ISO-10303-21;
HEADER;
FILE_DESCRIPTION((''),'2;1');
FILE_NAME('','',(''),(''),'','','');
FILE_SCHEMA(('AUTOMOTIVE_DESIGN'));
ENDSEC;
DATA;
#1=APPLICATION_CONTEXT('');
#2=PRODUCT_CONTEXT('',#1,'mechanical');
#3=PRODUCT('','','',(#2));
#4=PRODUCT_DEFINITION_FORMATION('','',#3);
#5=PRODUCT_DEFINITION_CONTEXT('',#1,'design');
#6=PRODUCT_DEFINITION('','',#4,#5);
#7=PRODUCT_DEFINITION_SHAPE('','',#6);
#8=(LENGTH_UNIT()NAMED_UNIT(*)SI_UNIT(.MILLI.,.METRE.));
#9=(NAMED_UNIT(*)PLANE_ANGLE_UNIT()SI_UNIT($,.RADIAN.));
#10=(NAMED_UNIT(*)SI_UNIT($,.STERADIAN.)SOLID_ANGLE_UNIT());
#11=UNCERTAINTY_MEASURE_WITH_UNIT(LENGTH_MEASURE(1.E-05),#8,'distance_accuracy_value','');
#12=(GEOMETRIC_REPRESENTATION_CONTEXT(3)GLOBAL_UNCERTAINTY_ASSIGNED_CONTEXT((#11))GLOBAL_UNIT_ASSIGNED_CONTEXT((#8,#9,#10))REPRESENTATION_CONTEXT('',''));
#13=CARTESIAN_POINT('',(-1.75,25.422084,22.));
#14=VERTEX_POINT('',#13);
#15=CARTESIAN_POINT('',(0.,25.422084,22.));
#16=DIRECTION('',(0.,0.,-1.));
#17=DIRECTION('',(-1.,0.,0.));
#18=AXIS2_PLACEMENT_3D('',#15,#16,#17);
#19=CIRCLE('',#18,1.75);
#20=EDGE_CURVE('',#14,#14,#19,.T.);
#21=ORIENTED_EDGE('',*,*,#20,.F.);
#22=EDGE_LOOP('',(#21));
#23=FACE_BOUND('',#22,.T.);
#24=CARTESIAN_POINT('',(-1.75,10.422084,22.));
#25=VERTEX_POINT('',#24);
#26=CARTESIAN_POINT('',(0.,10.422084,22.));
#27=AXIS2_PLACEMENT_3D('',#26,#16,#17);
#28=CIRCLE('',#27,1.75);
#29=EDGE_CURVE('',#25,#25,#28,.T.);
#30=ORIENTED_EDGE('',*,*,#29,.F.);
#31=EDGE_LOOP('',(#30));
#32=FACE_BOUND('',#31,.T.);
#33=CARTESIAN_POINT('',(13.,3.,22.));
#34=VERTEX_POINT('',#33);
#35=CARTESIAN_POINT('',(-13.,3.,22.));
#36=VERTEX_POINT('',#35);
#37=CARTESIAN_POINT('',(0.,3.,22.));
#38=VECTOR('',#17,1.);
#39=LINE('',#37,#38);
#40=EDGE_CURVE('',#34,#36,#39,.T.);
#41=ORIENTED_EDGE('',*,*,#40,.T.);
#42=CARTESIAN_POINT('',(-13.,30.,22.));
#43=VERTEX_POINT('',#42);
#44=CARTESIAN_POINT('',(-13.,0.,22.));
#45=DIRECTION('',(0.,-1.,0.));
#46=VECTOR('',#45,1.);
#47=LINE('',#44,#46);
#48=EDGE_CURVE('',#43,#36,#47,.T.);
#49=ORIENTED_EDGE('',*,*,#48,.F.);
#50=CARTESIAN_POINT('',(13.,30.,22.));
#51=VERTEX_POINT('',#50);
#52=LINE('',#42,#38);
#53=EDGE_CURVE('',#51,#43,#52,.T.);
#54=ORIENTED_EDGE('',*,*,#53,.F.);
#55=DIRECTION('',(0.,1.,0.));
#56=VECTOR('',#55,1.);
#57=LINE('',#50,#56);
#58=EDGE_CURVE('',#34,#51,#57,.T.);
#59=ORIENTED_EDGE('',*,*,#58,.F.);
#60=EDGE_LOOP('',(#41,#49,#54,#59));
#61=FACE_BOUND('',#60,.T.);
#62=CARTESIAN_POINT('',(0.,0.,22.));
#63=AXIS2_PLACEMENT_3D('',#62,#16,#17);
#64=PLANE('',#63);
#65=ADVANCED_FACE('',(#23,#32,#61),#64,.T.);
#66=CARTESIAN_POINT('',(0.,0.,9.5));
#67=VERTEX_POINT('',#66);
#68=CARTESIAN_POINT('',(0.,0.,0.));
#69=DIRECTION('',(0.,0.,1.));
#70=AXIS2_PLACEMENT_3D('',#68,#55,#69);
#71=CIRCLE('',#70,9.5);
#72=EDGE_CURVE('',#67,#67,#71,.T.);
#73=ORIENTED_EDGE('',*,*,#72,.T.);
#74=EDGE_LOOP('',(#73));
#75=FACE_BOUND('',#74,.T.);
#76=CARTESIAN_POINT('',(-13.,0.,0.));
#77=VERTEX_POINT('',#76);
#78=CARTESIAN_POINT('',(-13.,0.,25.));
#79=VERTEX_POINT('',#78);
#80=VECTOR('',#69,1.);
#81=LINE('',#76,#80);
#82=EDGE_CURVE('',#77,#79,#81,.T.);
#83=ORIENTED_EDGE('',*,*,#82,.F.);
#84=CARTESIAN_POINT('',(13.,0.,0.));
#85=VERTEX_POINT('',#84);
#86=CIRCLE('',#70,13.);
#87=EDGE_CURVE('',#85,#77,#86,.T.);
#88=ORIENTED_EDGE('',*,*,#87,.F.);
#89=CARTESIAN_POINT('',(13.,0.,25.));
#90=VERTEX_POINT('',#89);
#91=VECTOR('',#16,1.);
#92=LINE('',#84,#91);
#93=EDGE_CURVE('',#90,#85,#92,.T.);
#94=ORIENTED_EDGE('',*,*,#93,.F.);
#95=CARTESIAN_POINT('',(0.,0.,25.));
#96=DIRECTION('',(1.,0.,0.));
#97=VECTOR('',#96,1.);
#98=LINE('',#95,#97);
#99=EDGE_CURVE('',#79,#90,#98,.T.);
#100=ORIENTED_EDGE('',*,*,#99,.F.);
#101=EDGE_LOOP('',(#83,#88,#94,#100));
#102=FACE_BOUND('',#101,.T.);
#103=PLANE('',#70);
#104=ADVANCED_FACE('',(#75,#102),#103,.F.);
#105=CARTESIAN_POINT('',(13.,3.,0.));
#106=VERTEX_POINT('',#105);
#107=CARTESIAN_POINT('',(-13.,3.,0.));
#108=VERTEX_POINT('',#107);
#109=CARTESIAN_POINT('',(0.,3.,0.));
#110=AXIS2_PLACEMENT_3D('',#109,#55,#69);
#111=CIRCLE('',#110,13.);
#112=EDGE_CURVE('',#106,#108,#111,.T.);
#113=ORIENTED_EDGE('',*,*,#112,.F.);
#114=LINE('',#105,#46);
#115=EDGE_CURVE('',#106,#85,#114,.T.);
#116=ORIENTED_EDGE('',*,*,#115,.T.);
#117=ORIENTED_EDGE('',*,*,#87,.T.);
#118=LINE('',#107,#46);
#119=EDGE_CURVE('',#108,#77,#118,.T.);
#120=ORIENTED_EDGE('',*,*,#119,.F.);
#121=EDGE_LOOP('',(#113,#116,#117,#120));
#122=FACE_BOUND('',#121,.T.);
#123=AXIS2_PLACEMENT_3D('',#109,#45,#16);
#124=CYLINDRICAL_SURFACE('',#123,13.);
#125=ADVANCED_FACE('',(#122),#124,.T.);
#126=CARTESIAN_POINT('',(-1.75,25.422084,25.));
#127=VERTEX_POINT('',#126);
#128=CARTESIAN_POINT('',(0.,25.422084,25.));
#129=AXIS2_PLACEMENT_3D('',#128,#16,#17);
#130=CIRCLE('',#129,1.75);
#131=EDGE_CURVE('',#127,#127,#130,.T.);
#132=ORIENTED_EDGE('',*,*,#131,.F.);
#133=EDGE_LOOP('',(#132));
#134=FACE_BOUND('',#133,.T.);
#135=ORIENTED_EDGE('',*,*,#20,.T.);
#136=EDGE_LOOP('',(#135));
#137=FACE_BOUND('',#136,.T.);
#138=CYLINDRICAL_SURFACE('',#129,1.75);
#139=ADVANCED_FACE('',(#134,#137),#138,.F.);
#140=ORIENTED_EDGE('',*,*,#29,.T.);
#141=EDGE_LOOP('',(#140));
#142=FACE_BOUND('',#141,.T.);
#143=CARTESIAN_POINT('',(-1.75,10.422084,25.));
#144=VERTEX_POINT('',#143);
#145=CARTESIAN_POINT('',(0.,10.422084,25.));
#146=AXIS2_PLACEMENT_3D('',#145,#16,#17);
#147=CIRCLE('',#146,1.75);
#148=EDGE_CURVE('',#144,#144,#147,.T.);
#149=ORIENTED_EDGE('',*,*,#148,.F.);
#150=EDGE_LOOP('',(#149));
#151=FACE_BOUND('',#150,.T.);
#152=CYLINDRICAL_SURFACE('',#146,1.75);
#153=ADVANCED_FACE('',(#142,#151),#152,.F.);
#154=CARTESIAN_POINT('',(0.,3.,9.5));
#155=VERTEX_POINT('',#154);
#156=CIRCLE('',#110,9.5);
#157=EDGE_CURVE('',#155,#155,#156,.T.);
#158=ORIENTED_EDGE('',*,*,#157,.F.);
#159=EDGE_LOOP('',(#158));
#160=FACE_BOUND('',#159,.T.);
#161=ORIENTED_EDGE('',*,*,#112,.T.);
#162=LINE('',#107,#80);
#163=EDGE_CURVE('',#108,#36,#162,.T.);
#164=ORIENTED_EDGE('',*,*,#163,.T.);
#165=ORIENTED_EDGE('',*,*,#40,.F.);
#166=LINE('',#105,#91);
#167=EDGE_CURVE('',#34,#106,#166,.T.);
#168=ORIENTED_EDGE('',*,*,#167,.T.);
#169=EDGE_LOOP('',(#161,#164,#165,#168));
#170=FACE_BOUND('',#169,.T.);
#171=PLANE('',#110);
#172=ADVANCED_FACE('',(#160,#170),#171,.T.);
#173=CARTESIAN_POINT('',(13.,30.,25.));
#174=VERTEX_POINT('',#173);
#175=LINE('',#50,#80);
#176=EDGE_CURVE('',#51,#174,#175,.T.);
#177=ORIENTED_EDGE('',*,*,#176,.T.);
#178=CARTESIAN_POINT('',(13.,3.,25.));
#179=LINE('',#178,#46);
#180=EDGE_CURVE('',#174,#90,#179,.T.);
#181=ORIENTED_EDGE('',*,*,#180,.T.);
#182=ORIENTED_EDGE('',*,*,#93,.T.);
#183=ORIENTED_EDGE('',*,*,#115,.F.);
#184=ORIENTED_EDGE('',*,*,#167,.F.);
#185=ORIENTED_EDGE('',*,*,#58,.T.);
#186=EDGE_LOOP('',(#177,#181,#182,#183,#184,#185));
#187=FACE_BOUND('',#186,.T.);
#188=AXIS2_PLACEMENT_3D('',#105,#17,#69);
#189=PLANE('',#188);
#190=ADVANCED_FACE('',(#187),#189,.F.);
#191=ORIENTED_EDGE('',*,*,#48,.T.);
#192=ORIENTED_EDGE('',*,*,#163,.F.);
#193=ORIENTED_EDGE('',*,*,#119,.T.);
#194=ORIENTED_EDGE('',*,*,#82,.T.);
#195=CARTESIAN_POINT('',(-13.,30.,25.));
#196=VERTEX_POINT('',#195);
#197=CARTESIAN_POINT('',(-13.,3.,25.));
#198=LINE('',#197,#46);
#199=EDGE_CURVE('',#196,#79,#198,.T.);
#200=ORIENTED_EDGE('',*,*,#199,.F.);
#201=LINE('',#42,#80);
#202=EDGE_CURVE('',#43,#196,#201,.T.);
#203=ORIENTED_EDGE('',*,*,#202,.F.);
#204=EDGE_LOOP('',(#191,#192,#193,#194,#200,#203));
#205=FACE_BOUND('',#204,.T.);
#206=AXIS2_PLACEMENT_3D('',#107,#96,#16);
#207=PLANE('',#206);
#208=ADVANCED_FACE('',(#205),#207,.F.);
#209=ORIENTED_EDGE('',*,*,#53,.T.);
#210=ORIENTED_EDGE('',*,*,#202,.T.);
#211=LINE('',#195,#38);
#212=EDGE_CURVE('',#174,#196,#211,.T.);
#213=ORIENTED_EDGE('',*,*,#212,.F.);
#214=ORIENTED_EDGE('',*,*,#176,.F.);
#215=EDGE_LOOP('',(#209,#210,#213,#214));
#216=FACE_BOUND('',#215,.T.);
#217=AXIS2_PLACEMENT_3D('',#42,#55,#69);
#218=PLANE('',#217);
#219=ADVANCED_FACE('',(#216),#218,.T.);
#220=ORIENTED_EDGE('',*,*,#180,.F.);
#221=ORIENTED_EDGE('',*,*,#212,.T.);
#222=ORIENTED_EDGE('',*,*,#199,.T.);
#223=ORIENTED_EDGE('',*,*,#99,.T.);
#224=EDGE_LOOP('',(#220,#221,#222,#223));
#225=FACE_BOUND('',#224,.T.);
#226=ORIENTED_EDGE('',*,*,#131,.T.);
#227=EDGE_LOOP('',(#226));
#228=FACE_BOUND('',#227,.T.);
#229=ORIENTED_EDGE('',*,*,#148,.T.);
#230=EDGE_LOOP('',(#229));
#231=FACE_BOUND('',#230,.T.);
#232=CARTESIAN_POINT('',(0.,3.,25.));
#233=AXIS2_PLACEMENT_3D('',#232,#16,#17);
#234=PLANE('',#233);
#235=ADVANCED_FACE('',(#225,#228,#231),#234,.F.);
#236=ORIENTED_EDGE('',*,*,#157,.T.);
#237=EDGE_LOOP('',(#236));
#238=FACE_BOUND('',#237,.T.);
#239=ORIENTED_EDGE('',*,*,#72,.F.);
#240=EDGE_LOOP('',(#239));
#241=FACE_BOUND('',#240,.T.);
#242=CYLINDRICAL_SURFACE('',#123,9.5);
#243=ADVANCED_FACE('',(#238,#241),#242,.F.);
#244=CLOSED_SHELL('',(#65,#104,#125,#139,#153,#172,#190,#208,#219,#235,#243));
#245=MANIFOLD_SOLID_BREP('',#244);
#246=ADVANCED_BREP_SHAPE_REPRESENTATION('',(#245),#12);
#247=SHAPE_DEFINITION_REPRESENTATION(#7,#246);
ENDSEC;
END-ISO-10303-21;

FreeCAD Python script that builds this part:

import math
import FreeCAD as App
import Part
import Sketcher
from FreeCAD import Vector
Q = App.Units.Quantity


def add_polygon(sketch, points):
    """Adds a closed chain of lines whose ends are joined by coincident constraints."""
    first, n = sketch.GeometryCount, len(points)
    for a, b in zip(points, points[1:] + points[:1]):
        sketch.addGeometry(Part.LineSegment(App.Vector(*a, 0), App.Vector(*b, 0)), False)
    for i in range(n):
        sketch.addConstraint(Sketcher.Constraint("Coincident", first + i, 2, first + (i + 1) % n, 1))

doc = App.newDocument("Part")
params = doc.addObject("Spreadsheet::Sheet", "Params")
for row, (alias, value) in enumerate([
    ("sketch1_diameter", "19 mm"),
    ("sketch1_radius", "13 mm"),
    ("sketch1_height", "25 mm"),
    ("pad1_length", "3 mm"),
    ("sketch2_width", "26 mm"),
    ("sketch2_height", "30 mm"),
    ("pad2_length", "3 mm"),
    ("sketch3_diameter", "3.5 mm"),
    ("pocket1_length", "3 mm"),
], start=1):
    params.set(f"A{row}", alias)
    params.set(f"B{row}", "=" + value)
    params.setAlias(f"B{row}", alias)

body = doc.addObject("PartDesign::Body", "Body")

# Sketch on XZ plane
sketch1 = body.newObject("Sketcher::SketchObject", "Sketch")
sketch1.AttachmentSupport = (doc.getObject("XZ_Plane"), [""])
sketch1.MapMode = "FlatFace"
sketch1.addGeometry([
    Part.ArcOfCircle(Part.Circle(Vector(0, 0, 0), Vector(0, 0, 1), 13), math.radians(180), math.radians(360)),  # 0
    Part.LineSegment(Vector(-13, 0, 0), Vector(-13, 25, 0)),  # 1
    Part.LineSegment(Vector(-13, 25, 0), Vector(13, 25, 0)),  # 2
    Part.LineSegment(Vector(13, 25, 0), Vector(13, 0, 0)),  # 3
    Part.Circle(Vector(0, 0, 0), Vector(0, 0, 1), 10),  # 4
], False)
sketch1.addConstraint([
    Sketcher.Constraint("Tangent", 0, 1, 1, 1),
    Sketcher.Constraint("Coincident", 1, 2, 2, 1),
    Sketcher.Constraint("Coincident", 2, 2, 3, 1),
    Sketcher.Constraint("Tangent", 3, 2, 0, 2),
    Sketcher.Constraint("Vertical", 1),
    Sketcher.Constraint("Horizontal", 2),
    Sketcher.Constraint("Vertical", 3),
    Sketcher.Constraint("Coincident", 0, 3, -1, 1),
    Sketcher.Constraint("Coincident", 4, 3, -1, 1),
    Sketcher.Constraint("Diameter", 4, Q("19 mm")),
    Sketcher.Constraint("Radius", 0, Q("13 mm")),
    Sketcher.Constraint("DistanceY", 1, 1, 1, 2, Q("25 mm")),
])
sketch1.setExpression("Constraints[9]", "Params.sketch1_diameter")
sketch1.setExpression("Constraints[10]", "Params.sketch1_radius")
sketch1.setExpression("Constraints[11]", "Params.sketch1_height")
pad1 = body.newObject("PartDesign::Pad", "Pad")
pad1.Profile = sketch1
pad1.setExpression("Length", "Params.pad1_length")
pad1.Reversed = True

# Sketch on XY plane
sketch2 = body.newObject("Sketcher::SketchObject", "Sketch001")
sketch2.AttachmentSupport = (doc.getObject("XY_Plane"), [""])
sketch2.MapMode = "FlatFace"
sketch2.AttachmentOffset = App.Placement(Vector(0, 0, 25), App.Rotation())
add_polygon(sketch2, [(-13, 30), (-13, 0), (13, 0), (13, 30)])  # lines 0-3
sketch2.addConstraint([
    Sketcher.Constraint("Vertical", 0),
    Sketcher.Constraint("Horizontal", 1),
    Sketcher.Constraint("Vertical", 2),
    Sketcher.Constraint("Horizontal", 3),
    Sketcher.Constraint("Symmetric", 0, 2, 1, 2, -1, 1),
    Sketcher.Constraint("DistanceX", 1, 1, 1, 2, Q("26 mm")),
    Sketcher.Constraint("DistanceY", 0, 2, 0, 1, Q("30 mm")),
])
sketch2.setExpression("Constraints[9]", "Params.sketch2_width")
sketch2.setExpression("Constraints[10]", "Params.sketch2_height")
pad2 = body.newObject("PartDesign::Pad", "Pad001")
pad2.Profile = sketch2
pad2.setExpression("Length", "Params.pad2_length")
pad2.Reversed = True

# Sketch on XY plane
sketch3 = body.newObject("Sketcher::SketchObject", "Sketch002")
sketch3.AttachmentSupport = (doc.getObject("XY_Plane"), [""])
sketch3.MapMode = "FlatFace"
sketch3.AttachmentOffset = App.Placement(Vector(0, 0, 22), App.Rotation())
sketch3.addGeometry([
    Part.Circle(Vector(0, 10.4, 0), Vector(0, 0, 1), 1.8),
    Part.Circle(Vector(0, 25.4, 0), Vector(0, 0, 1), 1.8),
], False)
sketch3.addConstraint([
    Sketcher.Constraint("Equal", 0, 1),
    Sketcher.Constraint("PointOnObject", 0, 3, -2),
    Sketcher.Constraint("PointOnObject", 1, 3, -2),
    Sketcher.Constraint("Diameter", 0, Q("3.5 mm")),
    Sketcher.Constraint("DistanceY", 0, 3, 1, 3, Q("15 mm")),
    Sketcher.Constraint("DistanceY", -1, 1, 0, 3, Q("10.422084 mm")),
])
sketch3.setExpression("Constraints[3]", "Params.sketch3_diameter")
pocket1 = body.newObject("PartDesign::Pocket", "Pocket")
pocket1.Profile = sketch3
pocket1.setExpression("Length", "Params.pocket1_length")
pocket1.Reversed = True

doc.recompute()
